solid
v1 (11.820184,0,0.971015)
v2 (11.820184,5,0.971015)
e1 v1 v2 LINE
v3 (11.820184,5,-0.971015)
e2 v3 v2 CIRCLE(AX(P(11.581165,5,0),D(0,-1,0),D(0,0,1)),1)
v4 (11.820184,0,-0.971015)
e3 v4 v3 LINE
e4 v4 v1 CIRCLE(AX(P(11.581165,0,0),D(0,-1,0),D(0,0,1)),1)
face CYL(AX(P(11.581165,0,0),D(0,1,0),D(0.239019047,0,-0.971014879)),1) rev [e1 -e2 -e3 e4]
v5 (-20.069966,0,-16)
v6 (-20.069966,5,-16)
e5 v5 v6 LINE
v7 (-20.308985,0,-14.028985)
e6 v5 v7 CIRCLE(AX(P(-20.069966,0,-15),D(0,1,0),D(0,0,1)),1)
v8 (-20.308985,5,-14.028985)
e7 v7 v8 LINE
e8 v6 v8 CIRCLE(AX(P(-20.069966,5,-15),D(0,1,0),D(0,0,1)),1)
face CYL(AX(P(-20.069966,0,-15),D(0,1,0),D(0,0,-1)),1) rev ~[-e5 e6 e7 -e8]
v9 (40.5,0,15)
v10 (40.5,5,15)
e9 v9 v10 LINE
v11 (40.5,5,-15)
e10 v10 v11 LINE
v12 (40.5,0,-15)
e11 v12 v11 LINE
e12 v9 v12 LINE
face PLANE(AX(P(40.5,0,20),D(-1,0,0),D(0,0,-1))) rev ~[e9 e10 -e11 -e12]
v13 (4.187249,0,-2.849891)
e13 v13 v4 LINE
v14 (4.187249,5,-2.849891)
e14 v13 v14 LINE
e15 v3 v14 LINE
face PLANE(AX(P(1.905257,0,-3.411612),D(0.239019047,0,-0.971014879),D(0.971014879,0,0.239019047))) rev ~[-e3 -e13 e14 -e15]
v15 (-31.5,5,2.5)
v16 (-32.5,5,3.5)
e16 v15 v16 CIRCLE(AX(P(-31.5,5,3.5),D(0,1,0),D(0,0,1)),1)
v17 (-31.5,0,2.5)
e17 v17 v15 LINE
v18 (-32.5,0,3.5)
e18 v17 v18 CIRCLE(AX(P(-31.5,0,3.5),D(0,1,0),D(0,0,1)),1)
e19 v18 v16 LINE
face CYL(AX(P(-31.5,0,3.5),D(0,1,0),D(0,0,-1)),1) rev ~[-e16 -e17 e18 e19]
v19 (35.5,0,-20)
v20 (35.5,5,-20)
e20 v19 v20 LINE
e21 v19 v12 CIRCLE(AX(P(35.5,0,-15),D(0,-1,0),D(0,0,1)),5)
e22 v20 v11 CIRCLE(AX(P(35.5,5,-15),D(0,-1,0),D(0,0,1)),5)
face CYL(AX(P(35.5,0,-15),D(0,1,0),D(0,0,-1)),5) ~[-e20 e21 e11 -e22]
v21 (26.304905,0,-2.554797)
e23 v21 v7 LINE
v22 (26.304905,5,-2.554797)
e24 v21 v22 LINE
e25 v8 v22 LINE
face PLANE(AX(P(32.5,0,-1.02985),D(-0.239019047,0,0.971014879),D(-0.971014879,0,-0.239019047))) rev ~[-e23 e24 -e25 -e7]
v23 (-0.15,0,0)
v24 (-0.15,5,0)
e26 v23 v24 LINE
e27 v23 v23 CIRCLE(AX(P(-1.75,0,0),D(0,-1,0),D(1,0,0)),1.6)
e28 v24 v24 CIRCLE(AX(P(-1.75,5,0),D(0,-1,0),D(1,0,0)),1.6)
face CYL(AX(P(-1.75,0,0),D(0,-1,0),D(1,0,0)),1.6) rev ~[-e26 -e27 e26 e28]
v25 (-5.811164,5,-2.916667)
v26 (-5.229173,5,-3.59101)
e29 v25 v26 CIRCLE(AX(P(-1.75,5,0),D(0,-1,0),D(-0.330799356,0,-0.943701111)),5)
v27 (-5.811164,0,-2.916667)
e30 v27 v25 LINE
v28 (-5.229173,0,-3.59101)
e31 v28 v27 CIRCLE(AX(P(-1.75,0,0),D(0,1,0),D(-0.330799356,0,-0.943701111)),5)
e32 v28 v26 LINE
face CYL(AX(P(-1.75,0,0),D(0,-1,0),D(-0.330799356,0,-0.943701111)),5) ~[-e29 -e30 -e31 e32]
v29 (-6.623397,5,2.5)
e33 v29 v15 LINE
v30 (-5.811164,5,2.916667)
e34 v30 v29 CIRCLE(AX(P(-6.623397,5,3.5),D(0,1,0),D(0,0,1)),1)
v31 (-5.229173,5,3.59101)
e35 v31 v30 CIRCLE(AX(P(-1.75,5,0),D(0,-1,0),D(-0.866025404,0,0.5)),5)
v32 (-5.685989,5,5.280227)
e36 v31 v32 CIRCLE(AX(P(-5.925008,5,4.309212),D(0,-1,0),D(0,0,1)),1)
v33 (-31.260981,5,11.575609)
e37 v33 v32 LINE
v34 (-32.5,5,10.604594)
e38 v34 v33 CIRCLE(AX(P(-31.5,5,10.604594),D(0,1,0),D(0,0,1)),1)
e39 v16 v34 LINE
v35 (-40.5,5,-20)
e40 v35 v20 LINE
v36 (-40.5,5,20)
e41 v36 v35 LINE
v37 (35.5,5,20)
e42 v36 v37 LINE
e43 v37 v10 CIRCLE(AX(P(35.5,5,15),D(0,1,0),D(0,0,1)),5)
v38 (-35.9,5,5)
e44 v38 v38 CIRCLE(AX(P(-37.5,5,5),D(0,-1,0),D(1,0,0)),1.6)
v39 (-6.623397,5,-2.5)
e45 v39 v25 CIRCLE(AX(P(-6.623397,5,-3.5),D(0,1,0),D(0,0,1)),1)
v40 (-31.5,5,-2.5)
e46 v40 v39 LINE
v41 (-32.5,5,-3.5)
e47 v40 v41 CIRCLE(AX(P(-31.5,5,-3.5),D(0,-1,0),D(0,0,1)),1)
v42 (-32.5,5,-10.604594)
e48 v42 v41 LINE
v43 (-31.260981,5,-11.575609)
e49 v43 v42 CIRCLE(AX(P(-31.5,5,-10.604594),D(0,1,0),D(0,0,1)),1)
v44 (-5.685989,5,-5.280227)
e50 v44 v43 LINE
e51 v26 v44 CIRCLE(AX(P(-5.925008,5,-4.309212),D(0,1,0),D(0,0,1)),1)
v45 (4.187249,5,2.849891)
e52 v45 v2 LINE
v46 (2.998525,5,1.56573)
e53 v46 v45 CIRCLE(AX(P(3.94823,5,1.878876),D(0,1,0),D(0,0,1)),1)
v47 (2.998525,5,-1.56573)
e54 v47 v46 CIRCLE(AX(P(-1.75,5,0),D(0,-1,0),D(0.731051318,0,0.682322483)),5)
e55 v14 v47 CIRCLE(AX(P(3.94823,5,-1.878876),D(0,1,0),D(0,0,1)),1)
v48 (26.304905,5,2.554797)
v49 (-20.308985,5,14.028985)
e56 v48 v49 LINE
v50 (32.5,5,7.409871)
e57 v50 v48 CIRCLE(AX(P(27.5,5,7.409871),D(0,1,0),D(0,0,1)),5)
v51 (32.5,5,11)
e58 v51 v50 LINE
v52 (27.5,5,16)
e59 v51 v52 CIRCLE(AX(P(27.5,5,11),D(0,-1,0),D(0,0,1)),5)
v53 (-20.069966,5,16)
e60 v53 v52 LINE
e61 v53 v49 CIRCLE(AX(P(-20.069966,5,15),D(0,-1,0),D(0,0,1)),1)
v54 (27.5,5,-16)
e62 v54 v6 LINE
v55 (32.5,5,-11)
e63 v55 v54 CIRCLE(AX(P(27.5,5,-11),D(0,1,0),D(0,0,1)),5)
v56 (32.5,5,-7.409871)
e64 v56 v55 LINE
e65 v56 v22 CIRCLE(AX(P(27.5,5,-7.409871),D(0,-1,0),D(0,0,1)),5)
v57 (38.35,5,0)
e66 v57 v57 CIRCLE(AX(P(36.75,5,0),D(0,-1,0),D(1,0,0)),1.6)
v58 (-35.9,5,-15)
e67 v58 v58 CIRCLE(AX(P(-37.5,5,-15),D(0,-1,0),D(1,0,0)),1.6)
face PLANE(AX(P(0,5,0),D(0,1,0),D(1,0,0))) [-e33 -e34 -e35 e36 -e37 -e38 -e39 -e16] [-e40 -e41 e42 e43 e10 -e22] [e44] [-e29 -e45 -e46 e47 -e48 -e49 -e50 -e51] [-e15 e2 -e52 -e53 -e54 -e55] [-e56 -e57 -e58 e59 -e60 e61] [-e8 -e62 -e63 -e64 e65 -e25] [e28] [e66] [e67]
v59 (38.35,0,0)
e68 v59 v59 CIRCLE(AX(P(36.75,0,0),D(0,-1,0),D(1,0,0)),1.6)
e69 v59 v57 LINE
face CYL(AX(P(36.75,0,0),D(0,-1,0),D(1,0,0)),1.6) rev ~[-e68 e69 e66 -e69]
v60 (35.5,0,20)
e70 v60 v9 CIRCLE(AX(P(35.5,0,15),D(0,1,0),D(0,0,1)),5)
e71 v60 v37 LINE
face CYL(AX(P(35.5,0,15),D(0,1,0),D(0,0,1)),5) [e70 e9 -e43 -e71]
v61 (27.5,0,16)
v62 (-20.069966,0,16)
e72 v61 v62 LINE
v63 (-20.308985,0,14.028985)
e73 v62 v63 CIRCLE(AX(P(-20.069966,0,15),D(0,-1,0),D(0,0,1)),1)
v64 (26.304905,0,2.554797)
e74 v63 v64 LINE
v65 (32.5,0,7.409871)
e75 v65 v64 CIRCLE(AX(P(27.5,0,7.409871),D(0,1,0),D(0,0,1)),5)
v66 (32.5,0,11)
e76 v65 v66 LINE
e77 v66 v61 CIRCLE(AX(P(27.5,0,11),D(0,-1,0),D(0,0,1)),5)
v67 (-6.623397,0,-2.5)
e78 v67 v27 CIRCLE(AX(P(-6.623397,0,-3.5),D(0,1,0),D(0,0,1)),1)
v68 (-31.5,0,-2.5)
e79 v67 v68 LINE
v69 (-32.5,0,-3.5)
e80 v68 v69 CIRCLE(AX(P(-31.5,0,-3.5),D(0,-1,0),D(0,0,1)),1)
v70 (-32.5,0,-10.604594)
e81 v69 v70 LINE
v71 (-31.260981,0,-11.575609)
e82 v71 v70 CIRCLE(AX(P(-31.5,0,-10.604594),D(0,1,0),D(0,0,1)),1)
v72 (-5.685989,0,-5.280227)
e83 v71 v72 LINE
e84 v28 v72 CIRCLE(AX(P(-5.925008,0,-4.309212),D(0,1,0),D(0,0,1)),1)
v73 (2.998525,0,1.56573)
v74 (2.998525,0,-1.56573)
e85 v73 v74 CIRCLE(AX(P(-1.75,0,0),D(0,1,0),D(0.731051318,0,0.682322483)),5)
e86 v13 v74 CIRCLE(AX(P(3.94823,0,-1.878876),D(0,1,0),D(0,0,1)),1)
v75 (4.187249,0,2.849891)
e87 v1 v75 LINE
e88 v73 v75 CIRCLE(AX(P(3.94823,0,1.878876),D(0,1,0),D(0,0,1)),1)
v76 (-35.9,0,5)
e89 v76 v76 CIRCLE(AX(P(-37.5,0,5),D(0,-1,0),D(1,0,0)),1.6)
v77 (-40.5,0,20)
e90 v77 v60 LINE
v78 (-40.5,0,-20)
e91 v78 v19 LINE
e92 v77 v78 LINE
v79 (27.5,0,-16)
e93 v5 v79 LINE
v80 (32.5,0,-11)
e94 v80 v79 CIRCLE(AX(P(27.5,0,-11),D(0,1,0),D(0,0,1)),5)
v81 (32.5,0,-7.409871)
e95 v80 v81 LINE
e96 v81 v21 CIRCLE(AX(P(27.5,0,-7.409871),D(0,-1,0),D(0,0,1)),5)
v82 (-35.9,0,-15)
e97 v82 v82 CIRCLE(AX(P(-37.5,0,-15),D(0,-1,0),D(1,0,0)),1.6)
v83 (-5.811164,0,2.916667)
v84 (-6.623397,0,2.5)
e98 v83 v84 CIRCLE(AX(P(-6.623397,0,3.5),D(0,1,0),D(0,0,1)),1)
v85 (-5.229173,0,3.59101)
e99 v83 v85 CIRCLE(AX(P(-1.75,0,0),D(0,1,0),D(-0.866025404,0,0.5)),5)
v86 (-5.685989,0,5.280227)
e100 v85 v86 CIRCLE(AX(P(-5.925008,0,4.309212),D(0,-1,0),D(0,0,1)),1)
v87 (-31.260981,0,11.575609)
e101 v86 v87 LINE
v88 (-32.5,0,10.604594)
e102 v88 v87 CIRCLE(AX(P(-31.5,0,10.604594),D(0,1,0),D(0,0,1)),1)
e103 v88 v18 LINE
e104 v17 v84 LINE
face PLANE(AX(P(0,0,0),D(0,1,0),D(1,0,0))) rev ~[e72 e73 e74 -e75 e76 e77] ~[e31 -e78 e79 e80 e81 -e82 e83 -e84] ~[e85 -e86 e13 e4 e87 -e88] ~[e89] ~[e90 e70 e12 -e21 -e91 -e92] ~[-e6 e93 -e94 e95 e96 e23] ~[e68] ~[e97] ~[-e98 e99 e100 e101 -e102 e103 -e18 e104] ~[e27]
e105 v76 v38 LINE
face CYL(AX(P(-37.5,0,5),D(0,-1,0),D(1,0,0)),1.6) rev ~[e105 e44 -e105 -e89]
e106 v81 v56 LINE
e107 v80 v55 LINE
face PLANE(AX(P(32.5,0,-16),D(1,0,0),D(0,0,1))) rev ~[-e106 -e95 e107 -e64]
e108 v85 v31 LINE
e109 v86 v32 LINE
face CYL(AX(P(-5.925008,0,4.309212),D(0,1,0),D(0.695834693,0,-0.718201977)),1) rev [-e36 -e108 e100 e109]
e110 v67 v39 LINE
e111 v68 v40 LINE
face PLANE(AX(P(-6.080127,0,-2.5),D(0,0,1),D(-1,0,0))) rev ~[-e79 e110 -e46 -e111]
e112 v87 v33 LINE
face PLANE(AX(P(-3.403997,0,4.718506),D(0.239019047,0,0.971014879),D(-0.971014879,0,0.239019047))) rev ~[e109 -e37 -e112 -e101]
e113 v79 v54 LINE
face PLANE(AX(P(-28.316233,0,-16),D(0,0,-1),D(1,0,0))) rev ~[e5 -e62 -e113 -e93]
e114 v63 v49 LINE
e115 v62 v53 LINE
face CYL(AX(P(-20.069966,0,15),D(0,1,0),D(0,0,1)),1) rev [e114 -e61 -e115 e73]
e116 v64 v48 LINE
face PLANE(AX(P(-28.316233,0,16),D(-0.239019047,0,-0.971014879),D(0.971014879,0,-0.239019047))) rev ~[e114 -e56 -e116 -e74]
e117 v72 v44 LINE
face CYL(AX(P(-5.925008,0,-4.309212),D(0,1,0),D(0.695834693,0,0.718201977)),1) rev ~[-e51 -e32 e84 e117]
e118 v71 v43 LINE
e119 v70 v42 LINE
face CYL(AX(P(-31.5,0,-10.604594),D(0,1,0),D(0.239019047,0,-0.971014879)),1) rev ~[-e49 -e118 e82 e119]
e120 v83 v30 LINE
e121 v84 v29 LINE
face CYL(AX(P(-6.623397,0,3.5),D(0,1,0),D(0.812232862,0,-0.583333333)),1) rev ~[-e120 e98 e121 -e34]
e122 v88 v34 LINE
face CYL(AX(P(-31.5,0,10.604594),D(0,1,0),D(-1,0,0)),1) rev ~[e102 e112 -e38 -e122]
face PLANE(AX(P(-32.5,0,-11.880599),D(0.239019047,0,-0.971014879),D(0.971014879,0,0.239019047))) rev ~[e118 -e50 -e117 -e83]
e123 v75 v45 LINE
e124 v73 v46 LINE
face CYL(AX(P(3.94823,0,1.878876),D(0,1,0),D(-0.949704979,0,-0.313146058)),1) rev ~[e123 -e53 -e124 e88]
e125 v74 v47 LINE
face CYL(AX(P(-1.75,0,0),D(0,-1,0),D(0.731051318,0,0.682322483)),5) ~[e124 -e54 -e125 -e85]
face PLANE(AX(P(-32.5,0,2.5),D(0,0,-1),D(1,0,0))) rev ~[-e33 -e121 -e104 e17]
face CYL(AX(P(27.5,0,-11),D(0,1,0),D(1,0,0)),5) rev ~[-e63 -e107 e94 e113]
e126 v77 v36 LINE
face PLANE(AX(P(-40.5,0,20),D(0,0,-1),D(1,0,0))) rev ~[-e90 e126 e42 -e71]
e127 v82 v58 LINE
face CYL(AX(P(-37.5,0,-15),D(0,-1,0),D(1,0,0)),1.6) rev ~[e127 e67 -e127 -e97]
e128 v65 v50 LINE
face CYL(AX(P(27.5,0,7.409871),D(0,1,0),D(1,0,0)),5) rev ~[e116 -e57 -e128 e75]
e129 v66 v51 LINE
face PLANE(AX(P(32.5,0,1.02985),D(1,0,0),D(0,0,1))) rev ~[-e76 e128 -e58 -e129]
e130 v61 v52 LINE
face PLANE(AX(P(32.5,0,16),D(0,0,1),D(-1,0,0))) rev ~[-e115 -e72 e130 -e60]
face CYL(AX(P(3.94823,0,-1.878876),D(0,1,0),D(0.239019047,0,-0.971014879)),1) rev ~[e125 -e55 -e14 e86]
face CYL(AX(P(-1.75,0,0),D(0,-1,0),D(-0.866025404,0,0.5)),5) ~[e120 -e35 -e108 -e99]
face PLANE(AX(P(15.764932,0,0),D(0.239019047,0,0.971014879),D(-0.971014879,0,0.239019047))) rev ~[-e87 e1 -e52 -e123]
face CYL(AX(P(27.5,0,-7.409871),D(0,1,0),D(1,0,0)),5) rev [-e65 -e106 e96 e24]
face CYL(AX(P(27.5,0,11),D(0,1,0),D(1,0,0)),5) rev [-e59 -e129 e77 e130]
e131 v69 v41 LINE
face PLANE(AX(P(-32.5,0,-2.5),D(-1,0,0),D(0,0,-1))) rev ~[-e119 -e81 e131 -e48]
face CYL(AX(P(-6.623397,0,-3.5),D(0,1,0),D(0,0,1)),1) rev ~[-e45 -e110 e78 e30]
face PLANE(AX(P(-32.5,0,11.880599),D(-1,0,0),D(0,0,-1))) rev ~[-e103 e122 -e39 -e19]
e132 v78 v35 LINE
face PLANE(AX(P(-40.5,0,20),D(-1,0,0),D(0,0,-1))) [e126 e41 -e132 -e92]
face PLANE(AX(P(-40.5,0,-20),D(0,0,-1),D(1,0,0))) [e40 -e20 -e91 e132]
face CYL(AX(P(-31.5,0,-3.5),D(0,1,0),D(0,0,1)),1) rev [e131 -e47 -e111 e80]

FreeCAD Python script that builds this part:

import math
import FreeCAD as App
import Part
import Sketcher

V = App.Vector


def edges_at(feature, points):
    """Names of the edges that pass closest to the given points."""
    edges = feature.Shape.Edges
    near = lambda p: min(range(len(edges)), key=lambda i: edges[i].distToShape(Part.Vertex(*p))[0])
    return sorted({f"Edge{near(p) + 1}" for p in points})

doc = App.newDocument("Part")
body = doc.addObject("PartDesign::Body", "Body")

# Sketch on XZ plane
sketch1 = doc.addObject("Sketcher::SketchObject", "Sketch")
body.addObject(sketch1)
sketch1.AttachmentSupport = (doc.XZ_Plane, [""])
sketch1.MapMode = "FlatFace"
sketch1.addGeometry(Part.LineSegment(V(-40.5, -20, 0), V(-40.5, 20, 0)), False)
sketch1.addGeometry(Part.LineSegment(V(-40.5, 20, 0), V(40.5, 20, 0)), False)
sketch1.addGeometry(Part.LineSegment(V(40.5, 20, 0), V(40.5, -20, 0)), False)
sketch1.addGeometry(Part.LineSegment(V(40.5, -20, 0), V(-40.5, -20, 0)), False)
sketch1.addConstraint(Sketcher.Constraint("Coincident", 0, 2, 1, 1))
sketch1.addConstraint(Sketcher.Constraint("Coincident", 1, 2, 2, 1))
sketch1.addConstraint(Sketcher.Constraint("Coincident", 2, 2, 3, 1))
sketch1.addConstraint(Sketcher.Constraint("Coincident", 3, 2, 0, 1))
sketch1.addConstraint(Sketcher.Constraint("Vertical", 0))
sketch1.addConstraint(Sketcher.Constraint("Horizontal", 1))
sketch1.addConstraint(Sketcher.Constraint("Vertical", 2))
sketch1.addConstraint(Sketcher.Constraint("Horizontal", 3))
sketch1.addConstraint(Sketcher.Constraint("Symmetric", 0, 2, 2, 2, -1, 1))
sketch1.addConstraint(Sketcher.Constraint("DistanceX", 1, 1, 1, 2, 81.0))
sketch1.addConstraint(Sketcher.Constraint("DistanceY", 0, 1, 0, 2, 40.0))
pad1 = doc.addObject("PartDesign::Pad", "Pad")
body.addObject(pad1)
pad1.Profile = sketch1
pad1.Length = 5
pad1.Reversed = True

# Sketch on XZ plane
sketch2 = doc.addObject("Sketcher::SketchObject", "Sketch001")
body.addObject(sketch2)
sketch2.AttachmentSupport = (doc.XZ_Plane, [""])
sketch2.MapMode = "FlatFace"
sketch2.addGeometry(Part.Circle(V(36.75, 0, 0), V(0, 0, 1), 1.6), False)
sketch2.addGeometry(Part.Circle(V(-1.75, 0, 0), V(0, 0, 1), 1.6), False)
sketch2.addConstraint(Sketcher.Constraint("Equal", 0, 1))
sketch2.addConstraint(Sketcher.Constraint("PointOnObject", 0, 3, -1))
sketch2.addConstraint(Sketcher.Constraint("PointOnObject", 1, 3, -1))
sketch2.addConstraint(Sketcher.Constraint("Diameter", 0, 3.2))
sketch2.addConstraint(Sketcher.Constraint("DistanceX", 1, 3, 0, 3, 38.5))
sketch2.addConstraint(Sketcher.Constraint("DistanceX", -1, 1, 0, 3, 36.75))
pocket1 = doc.addObject("PartDesign::Pocket", "Pocket")
body.addObject(pocket1)
pocket1.Profile = sketch2
pocket1.Type = "ThroughAll"
doc.recompute()

fillet = doc.addObject("PartDesign::Fillet", "Fillet")
body.addObject(fillet)
fillet.Base = (pocket1, edges_at(pocket1, [(40.5, 2.5, 20), (40.5, 2.5, -20)]))
fillet.Radius = 5

# Sketch on XZ plane
sketch3 = doc.addObject("Sketcher::SketchObject", "Sketch002")
body.addObject(sketch3)
sketch3.AttachmentSupport = (doc.XZ_Plane, [""])
sketch3.MapMode = "FlatFace"
sketch3.addGeometry(Part.Circle(V(-37.5, 5, 0), V(0, 0, 1), 1.6), False)
sketch3.addGeometry(Part.Circle(V(-37.5, -15, 0), V(0, 0, 1), 1.6), False)
sketch3.addConstraint(Sketcher.Constraint("Equal", 0, 1))
sketch3.addConstraint(Sketcher.Constraint("Vertical", 0, 3, 1, 3))
sketch3.addConstraint(Sketcher.Constraint("Diameter", 0, 3.2))
sketch3.addConstraint(Sketcher.Constraint("DistanceY", -1, 1, 0, 3, 5.0))
sketch3.addConstraint(Sketcher.Constraint("DistanceY", 1, 3, -1, 1, 15.0))
sketch3.addConstraint(Sketcher.Constraint("DistanceX", 0, 3, -1, 1, 37.5))
pocket2 = doc.addObject("PartDesign::Pocket", "Pocket001")
body.addObject(pocket2)
pocket2.Profile = sketch3
pocket2.Type = "ThroughAll"

# Sketch on XZ plane
sketch4 = doc.addObject("Sketcher::SketchObject", "Sketch003")
body.addObject(sketch4)
sketch4.AttachmentSupport = (doc.XZ_Plane, [""])
sketch4.MapMode = "FlatFace"
sketch4.addGeometry(Part.LineSegment(V(32.5, 16, 0), V(-28.316233, 16, 0)), False)
sketch4.addGeometry(Part.LineSegment(V(-28.316233, 16, 0), V(32.5, 1.02985, 0)), False)
sketch4.addGeometry(Part.LineSegment(V(32.5, 1.02985, 0), V(32.5, 16, 0)), False)
sketch4.addGeometry(Part.LineSegment(V(-3.403997, 4.718506, 0), V(-32.5, 11.880599, 0)), False)
sketch4.addGeometry(Part.LineSegment(V(-32.5, 11.880599, 0), V(-32.5, 2.5, 0)), False)
sketch4.addGeometry(Part.LineSegment(V(-32.5, 2.5, 0), V(-6.080127, 2.5, 0)), False)
sketch4.addGeometry(Part.ArcOfCircle(Part.Circle(V(-1.75, 0, 0), V(0, 0, 1), 5), math.radians(109.3173), math.radians(150)), False)
sketch4.addGeometry(Part.LineSegment(V(32.5, -1.02985, 0), V(-28.316233, -16, 0)), False)
sketch4.addGeometry(Part.LineSegment(V(-28.316233, -16, 0), V(32.5, -16, 0)), False)
sketch4.addGeometry(Part.LineSegment(V(32.5, -16, 0), V(32.5, -1.02985, 0)), False)
sketch4.addGeometry(Part.LineSegment(V(15.764932, 0, 0), V(1.905257, 3.411612, 0)), False)
sketch4.addGeometry(Part.ArcOfCircle(Part.Circle(V(-1.75, 0, 0), V(0, 0, 1), 5), math.radians(-43.025398), math.radians(43.025398)), False)
sketch4.addGeometry(Part.LineSegment(V(1.905257, -3.411612, 0), V(15.764932, 0, 0)), False)
sketch4.addGeometry(Part.LineSegment(V(-32.5, -2.5, 0), V(-32.5, -11.880599, 0)), False)
sketch4.addGeometry(Part.LineSegment(V(-32.5, -11.880599, 0), V(-3.403997, -4.718506, 0)), False)
sketch4.addGeometry(Part.ArcOfCircle(Part.Circle(V(-1.75, 0, 0), V(0, 0, 1), 5), math.radians(-150), math.radians(-109.3173)), False)
sketch4.addGeometry(Part.LineSegment(V(-6.080127, -2.5, 0), V(-32.5, -2.5, 0)), False)
sketch4.addConstraint(Sketcher.Constraint("Coincident", 0, 2, 1, 1))
sketch4.addConstraint(Sketcher.Constraint("Coincident", 1, 2, 2, 1))
sketch4.addConstraint(Sketcher.Constraint("Coincident", 2, 2, 0, 1))
sketch4.addConstraint(Sketcher.Constraint("Coincident", 3, 2, 4, 1))
sketch4.addConstraint(Sketcher.Constraint("Coincident", 4, 2, 5, 1))
sketch4.addConstraint(Sketcher.Constraint("Coincident", 5, 2, 6, 2))
sketch4.addConstraint(Sketcher.Constraint("Coincident", 6, 1, 3, 1))
sketch4.addConstraint(Sketcher.Constraint("Coincident", 7, 2, 8, 1))
sketch4.addConstraint(Sketcher.Constraint("Coincident", 8, 2, 9, 1))
sketch4.addConstraint(Sketcher.Constraint("Coincident", 9, 2, 7, 1))
sketch4.addConstraint(Sketcher.Constraint("Coincident", 10, 2, 11, 2))
sketch4.addConstraint(Sketcher.Constraint("Coincident", 11, 1, 12, 1))
sketch4.addConstraint(Sketcher.Constraint("Coincident", 12, 2, 10, 1))
sketch4.addConstraint(Sketcher.Constraint("Coincident", 13, 2, 14, 1))
sketch4.addConstraint(Sketcher.Constraint("Coincident", 14, 2, 15, 2))
sketch4.addConstraint(Sketcher.Constraint("Coincident", 15, 1, 16, 1))
sketch4.addConstraint(Sketcher.Constraint("Coincident", 16, 2, 13, 1))
sketch4.addConstraint(Sketcher.Constraint("Horizontal", 0))
sketch4.addConstraint(Sketcher.Constraint("Vertical", 2))
sketch4.addConstraint(Sketcher.Constraint("Vertical", 4))
sketch4.addConstraint(Sketcher.Constraint("Horizontal", 5))
sketch4.addConstraint(Sketcher.Constraint("Horizontal", 8))
sketch4.addConstraint(Sketcher.Constraint("Vertical", 9))
sketch4.addConstraint(Sketcher.Constraint("Vertical", 13))
sketch4.addConstraint(Sketcher.Constraint("Horizontal", 16))
sketch4.addConstraint(Sketcher.Constraint("Coincident", 11, 3, 6, 3))
sketch4.addConstraint(Sketcher.Constraint("Coincident", 15, 3, 6, 3))
sketch4.addConstraint(Sketcher.Constraint("Equal", 6, 11))
sketch4.addConstraint(Sketcher.Constraint("Equal", 11, 15))
sketch4.addConstraint(Sketcher.Constraint("Symmetric", 0, 2, 7, 2, -1))
sketch4.addConstraint(Sketcher.Constraint("Symmetric", 1, 2, 9, 2, -1))
sketch4.addConstraint(Sketcher.Constraint("Symmetric", 10, 2, 11, 1, -1))
sketch4.addConstraint(Sketcher.Constraint("Symmetric", 3, 2, 13, 2, -1))
sketch4.addConstraint(Sketcher.Constraint("PointOnObject", 12, 2, -1))
sketch4.addConstraint(Sketcher.Constraint("Parallel", 1, 3))
sketch4.addConstraint(Sketcher.Constraint("Parallel", 3, 10))
sketch4.addConstraint(Sketcher.Constraint("Parallel", 12, 14))
sketch4.addConstraint(Sketcher.Constraint("Vertical", 5, 2, 15, 1))
sketch4.addConstraint(Sketcher.Constraint("Radius", 6, 5.0))
sketch4.addConstraint(Sketcher.Constraint("DistanceY", -1, 1, 0, 2, 16.0))
sketch4.addConstraint(Sketcher.Constraint("DistanceX", 3, 2, 2, 2, 65.0))
sketch4.addConstraint(Sketcher.Constraint("DistanceY", 15, 1, 5, 2, 5.0))
sketch4.addConstraint(Sketcher.Constraint("DistanceX", -1, 1, 1, 2, 32.5))
sketch4.addConstraint(Sketcher.Constraint("DistanceX", 6, 3, -1, 1, 1.75))
sketch4.addConstraint(Sketcher.Constraint("DistanceY", 4, 2, 4, 1, 9.380599))
sketch4.addConstraint(Sketcher.Constraint("DistanceY", 2, 1, 2, 2, 14.97015))
sketch4.addConstraint(Sketcher.Constraint("Distance", 1, 62.631618))
sketch4.addConstraint(Sketcher.Constraint("Distance", 10, 14.273391))
pocket3 = doc.addObject("PartDesign::Pocket", "Pocket002")
body.addObject(pocket3)
pocket3.Profile = sketch4
pocket3.Length = 10
doc.recompute()

fillet2 = doc.addObject("PartDesign::Fillet", "Fillet001")
body.addObject(fillet2)
fillet2.Base = (pocket3, edges_at(pocket3, [(32.5, 2.5, 1.03), (32.5, 2.5, -1.03)]))
fillet2.Radius = 5
doc.recompute()

fillet3 = doc.addObject("PartDesign::Fillet", "Fillet002")
body.addObject(fillet3)
fillet3.Base = (fillet2, edges_at(fillet2, [(32.5, 2.5, 16), (32.5, 2.5, -16)]))
fillet3.Radius = 5
doc.recompute()

fillet4 = doc.addObject("PartDesign::Fillet", "Fillet003")
body.addObject(fillet4)
fillet4.Base = (fillet3, edges_at(fillet3, [(1.905, 2.5, -3.412), (1.905, 2.5, 3.412), (15.765, 2.5, 0)]))
fillet4.Radius = 1
doc.recompute()

fillet5 = doc.addObject("PartDesign::Fillet", "Fillet004")
body.addObject(fillet5)
fillet5.Base = (fillet4, edges_at(fillet4, [
    (-6.08, 2.5, -2.5),
    (-3.404, 2.5, -4.719),
    (-32.5, 2.5, -11.881),
    (-32.5, 2.5, -2.5),
    (-28.316, 2.5, 16),
    (-28.316, 2.5, -16),
    (-3.404, 2.5, 4.719),
    (-6.08, 2.5, 2.5),
    (-32.5, 2.5, 2.5),
    (-32.5, 2.5, 11.881),
]))
fillet5.Radius = 1

doc.recompute()
